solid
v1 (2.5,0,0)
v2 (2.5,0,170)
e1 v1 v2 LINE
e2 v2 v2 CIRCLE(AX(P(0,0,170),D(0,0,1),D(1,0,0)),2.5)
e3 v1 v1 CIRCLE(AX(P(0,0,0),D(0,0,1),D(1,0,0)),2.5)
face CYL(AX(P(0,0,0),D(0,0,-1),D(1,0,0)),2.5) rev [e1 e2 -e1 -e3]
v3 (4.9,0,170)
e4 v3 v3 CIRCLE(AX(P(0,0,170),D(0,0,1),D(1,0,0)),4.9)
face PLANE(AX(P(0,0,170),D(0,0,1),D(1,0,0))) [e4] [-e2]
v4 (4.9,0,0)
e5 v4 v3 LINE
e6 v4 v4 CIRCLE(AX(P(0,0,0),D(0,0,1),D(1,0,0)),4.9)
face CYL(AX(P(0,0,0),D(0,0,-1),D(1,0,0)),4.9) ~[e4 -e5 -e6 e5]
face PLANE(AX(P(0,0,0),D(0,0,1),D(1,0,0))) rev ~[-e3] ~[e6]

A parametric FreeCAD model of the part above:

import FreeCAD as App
import Part
import Sketcher

doc = App.newDocument("Part")
body = doc.addObject("PartDesign::Body", "Body")

sketch1 = body.newObject("Sketcher::SketchObject", "Sketch")
sketch1.AttachmentSupport = (doc.getObject("XY_Plane"), [""])
sketch1.MapMode = "FlatFace"
sketch1.addGeometry([
    Part.Circle(App.Vector(0, 0, 0), App.Vector(0, 0, 1), 4.9),
    Part.Circle(App.Vector(0, 0, 0), App.Vector(0, 0, 1), 2.5),
], False)
sketch1.addConstraint([
    Sketcher.Constraint("Coincident", 0, 3, -1, 1),
    Sketcher.Constraint("Coincident", 1, 3, -1, 1),
    Sketcher.Constraint("Diameter", 0, 9.8),
    Sketcher.Constraint("Diameter", 1, 5.0),
])
pad1 = body.newObject("PartDesign::Pad", "Pad")
pad1.Profile = sketch1
pad1.Length = 170

doc.recompute()
